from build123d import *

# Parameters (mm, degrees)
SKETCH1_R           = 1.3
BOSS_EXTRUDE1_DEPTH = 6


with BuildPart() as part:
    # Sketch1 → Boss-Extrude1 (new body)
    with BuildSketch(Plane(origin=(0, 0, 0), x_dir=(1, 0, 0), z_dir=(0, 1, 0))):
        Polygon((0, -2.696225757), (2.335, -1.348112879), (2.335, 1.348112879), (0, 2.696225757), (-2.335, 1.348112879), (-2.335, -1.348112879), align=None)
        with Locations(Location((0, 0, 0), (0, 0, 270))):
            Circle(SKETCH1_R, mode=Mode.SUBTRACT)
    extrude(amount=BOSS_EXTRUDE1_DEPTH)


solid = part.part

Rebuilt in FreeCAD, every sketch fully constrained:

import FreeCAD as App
import Part
import Sketcher

V = App.Vector
Q = App.Units.Quantity


def add_polygon(sketch, points):
    """Adds a closed chain of lines whose ends are joined by coincident constraints."""
    first, n = sketch.GeometryCount, len(points)
    for a, b in zip(points, points[1:] + points[:1]):
        sketch.addGeometry(Part.LineSegment(App.Vector(*a, 0), App.Vector(*b, 0)), False)
    for i in range(n):
        sketch.addConstraint(Sketcher.Constraint("Coincident", first + i, 2, first + (i + 1) % n, 1))

doc = App.newDocument("Part")
body = doc.addObject("PartDesign::Body", "Body")

# Sketch on XZ plane
sketch1 = body.newObject("Sketcher::SketchObject", "Sketch")
sketch1.AttachmentSupport = (doc.getObject("XZ_Plane"), [""])
sketch1.MapMode = "FlatFace"
add_polygon(sketch1, [(0, 2.7), (2.3, 1.3), (2.3, -1.3), (0, -2.7), (-2.3, -1.3), (-2.3, 1.3)])  # lines 0-5
sketch1.addGeometry(Part.Circle(V(0, 0, 0), V(0, 0, 1), 1.3), False)  # 6
sketch1.addConstraint([
    Sketcher.Constraint("Vertical", 1),
    Sketcher.Constraint("Vertical", 4),
    Sketcher.Constraint("Coincident", 6, 3, -1, 1),
    Sketcher.Constraint("Symmetric", 0, 2, 3, 2, -1, 1),
    Sketcher.Constraint("Symmetric", 2, 2, 5, 2, -1, 1),
    Sketcher.Constraint("PointOnObject", 2, 2, -2),
    Sketcher.Constraint("Parallel", 2, 5),
    Sketcher.Constraint("Horizontal", 1, 2, 3, 2),
    Sketcher.Constraint("Diameter", 6, Q("2.6 mm")),
    Sketcher.Constraint("Angle", 0, Q("-30 deg")),
    Sketcher.Constraint("DistanceX", 3, 2, 1, 2, Q("4.67 mm")),
    Sketcher.Constraint("DistanceY", 1, 2, 1, 1, Q("2.696226 mm")),
])
pad1 = body.newObject("PartDesign::Pad", "Pad")
pad1.Profile = sketch1
pad1.Length = 6
pad1.Reversed = True

doc.recompute()
